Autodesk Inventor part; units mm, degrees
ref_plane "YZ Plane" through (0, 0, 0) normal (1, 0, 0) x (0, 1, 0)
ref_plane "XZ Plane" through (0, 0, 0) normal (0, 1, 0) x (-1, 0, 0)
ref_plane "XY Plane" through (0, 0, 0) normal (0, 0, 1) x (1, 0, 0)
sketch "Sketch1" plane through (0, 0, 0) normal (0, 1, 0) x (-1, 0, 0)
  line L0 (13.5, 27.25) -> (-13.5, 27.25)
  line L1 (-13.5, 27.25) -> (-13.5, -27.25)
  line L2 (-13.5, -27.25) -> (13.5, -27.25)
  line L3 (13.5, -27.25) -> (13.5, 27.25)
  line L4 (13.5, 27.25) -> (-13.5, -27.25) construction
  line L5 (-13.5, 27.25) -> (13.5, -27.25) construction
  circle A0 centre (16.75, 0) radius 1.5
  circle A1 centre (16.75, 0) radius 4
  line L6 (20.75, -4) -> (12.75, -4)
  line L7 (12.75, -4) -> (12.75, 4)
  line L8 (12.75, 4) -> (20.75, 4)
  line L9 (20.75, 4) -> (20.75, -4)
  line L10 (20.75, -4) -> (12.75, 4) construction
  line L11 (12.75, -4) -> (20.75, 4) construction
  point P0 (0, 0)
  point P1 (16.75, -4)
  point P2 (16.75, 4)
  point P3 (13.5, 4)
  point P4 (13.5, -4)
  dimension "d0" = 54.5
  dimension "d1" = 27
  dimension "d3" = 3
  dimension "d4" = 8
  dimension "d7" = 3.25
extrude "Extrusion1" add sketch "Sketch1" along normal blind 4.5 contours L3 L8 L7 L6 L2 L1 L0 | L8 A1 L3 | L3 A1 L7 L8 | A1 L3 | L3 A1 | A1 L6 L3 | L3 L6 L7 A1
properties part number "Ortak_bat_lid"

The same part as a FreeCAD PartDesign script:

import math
import FreeCAD as App
import Part
import Sketcher

doc = App.newDocument("Part")
body = doc.addObject("PartDesign::Body", "Body")

# Sketch on XZ plane
sketch1 = doc.addObject("Sketcher::SketchObject", "Sketch")
body.addObject(sketch1)
sketch1.AttachmentSupport = (doc.XZ_Plane, [""])
sketch1.MapMode = "FlatFace"
sketch1.addGeometry(Part.LineSegment(App.Vector(-13.5, 4, 0), App.Vector(-13.5, 27.2, 0)), False)
sketch1.addGeometry(Part.LineSegment(App.Vector(-13.5, 27.2, 0), App.Vector(13.5, 27.2, 0)), False)
sketch1.addGeometry(Part.LineSegment(App.Vector(13.5, 27.2, 0), App.Vector(13.5, -27.2, 0)), False)
sketch1.addGeometry(Part.LineSegment(App.Vector(13.5, -27.2, 0), App.Vector(-13.5, -27.2, 0)), False)
sketch1.addGeometry(Part.LineSegment(App.Vector(-13.5, -27.2, 0), App.Vector(-13.5, -4, 0)), False)
sketch1.addGeometry(Part.LineSegment(App.Vector(-13.5, -4, 0), App.Vector(-16.8, -4, 0)), False)
sketch1.addGeometry(Part.ArcOfCircle(Part.Circle(App.Vector(-16.8, 0, 0), App.Vector(0, 0, 1), 4), math.radians(90), math.radians(270)), False)
sketch1.addGeometry(Part.LineSegment(App.Vector(-16.8, 4, 0), App.Vector(-13.5, 4, 0)), False)
sketch1.addGeometry(Part.Circle(App.Vector(-16.8, 0, 0), App.Vector(0, 0, 1), 1.5), False)
sketch1.addConstraint(Sketcher.Constraint("Coincident", 0, 2, 1, 1))
sketch1.addConstraint(Sketcher.Constraint("Coincident", 1, 2, 2, 1))
sketch1.addConstraint(Sketcher.Constraint("Coincident", 2, 2, 3, 1))
sketch1.addConstraint(Sketcher.Constraint("Coincident", 3, 2, 4, 1))
sketch1.addConstraint(Sketcher.Constraint("Coincident", 4, 2, 5, 1))
sketch1.addConstraint(Sketcher.Constraint("Tangent", 5, 2, 6, 2))
sketch1.addConstraint(Sketcher.Constraint("Tangent", 6, 1, 7, 1))
sketch1.addConstraint(Sketcher.Constraint("Coincident", 7, 2, 0, 1))
sketch1.addConstraint(Sketcher.Constraint("Vertical", 0))
sketch1.addConstraint(Sketcher.Constraint("Horizontal", 1))
sketch1.addConstraint(Sketcher.Constraint("Vertical", 2))
sketch1.addConstraint(Sketcher.Constraint("Horizontal", 3))
sketch1.addConstraint(Sketcher.Constraint("Vertical", 4))
sketch1.addConstraint(Sketcher.Constraint("Horizontal", 5))
sketch1.addConstraint(Sketcher.Constraint("Horizontal", 7))
sketch1.addConstraint(Sketcher.Constraint("Coincident", 8, 3, 6, 3))
sketch1.addConstraint(Sketcher.Constraint("Symmetric", 0, 2, 2, 2, -1, 1))
sketch1.addConstraint(Sketcher.Constraint("Symmetric", 4, 2, 7, 2, -1))
sketch1.addConstraint(Sketcher.Constraint("Diameter", 8, 3.0))
sketch1.addConstraint(Sketcher.Constraint("Radius", 6, 4.0))
sketch1.addConstraint(Sketcher.Constraint("DistanceX", 1, 1, 1, 2, 27.0))
sketch1.addConstraint(Sketcher.Constraint("DistanceY", 2, 2, 2, 1, 54.5))
sketch1.addConstraint(Sketcher.Constraint("DistanceX", 5, 2, 5, 1, 3.25))
pad1 = doc.addObject("PartDesign::Pad", "Pad")
body.addObject(pad1)
pad1.Profile = sketch1
pad1.Length = 4.5
pad1.Reversed = True

doc.recompute()
